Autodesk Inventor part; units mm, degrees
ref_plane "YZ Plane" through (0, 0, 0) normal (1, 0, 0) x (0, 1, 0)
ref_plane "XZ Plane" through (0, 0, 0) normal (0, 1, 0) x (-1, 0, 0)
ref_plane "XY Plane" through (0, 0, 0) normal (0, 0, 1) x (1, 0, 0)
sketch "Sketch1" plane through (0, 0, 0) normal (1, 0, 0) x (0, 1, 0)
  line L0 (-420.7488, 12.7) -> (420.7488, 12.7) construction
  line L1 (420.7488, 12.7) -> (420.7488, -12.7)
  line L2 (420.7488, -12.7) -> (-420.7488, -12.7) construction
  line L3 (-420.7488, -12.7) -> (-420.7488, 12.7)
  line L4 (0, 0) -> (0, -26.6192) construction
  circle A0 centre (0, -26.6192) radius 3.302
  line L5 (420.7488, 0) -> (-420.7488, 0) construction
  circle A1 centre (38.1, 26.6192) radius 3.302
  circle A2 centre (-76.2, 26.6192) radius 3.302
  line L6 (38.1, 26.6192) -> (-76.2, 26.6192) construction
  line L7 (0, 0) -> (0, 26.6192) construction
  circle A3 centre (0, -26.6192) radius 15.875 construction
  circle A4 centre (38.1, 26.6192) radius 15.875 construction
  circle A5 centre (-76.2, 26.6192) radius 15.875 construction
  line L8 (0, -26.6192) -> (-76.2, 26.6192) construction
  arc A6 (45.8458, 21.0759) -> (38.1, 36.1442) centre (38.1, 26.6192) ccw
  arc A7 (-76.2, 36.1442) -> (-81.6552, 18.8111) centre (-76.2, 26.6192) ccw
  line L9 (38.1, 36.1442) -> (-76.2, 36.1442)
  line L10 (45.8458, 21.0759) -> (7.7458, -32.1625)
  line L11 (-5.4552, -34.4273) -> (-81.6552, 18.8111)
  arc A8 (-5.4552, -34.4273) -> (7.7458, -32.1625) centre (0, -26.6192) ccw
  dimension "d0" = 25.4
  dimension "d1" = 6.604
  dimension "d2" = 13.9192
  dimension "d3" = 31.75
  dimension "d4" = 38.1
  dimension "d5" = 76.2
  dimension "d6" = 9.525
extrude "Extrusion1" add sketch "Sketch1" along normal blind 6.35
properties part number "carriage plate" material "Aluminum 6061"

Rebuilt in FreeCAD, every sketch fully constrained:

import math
import FreeCAD as App
import Part
import Sketcher
Q = App.Units.Quantity

doc = App.newDocument("Part")
body = doc.addObject("PartDesign::Body", "Body")

# Sketch on YZ plane
sketch1 = body.newObject("Sketcher::SketchObject", "Sketch")
sketch1.AttachmentSupport = (doc.getObject("YZ_Plane"), [""])
sketch1.MapMode = "FlatFace"
sketch1.addGeometry(Part.LineSegment(App.Vector(7.7, -32.2, 0), App.Vector(45.8, 21.1, 0)), False)
sketch1.addGeometry(Part.ArcOfCircle(Part.Circle(App.Vector(38.1, 26.6, 0), App.Vector(0, 0, 1), 9.5), math.radians(-36), math.radians(90)), False)
sketch1.addGeometry(Part.LineSegment(App.Vector(38.1, 36.1, 0), App.Vector(-76.2, 36.1, 0)), False)
sketch1.addGeometry(Part.ArcOfCircle(Part.Circle(App.Vector(-76.2, 26.6, 0), App.Vector(0, 0, 1), 9.5), math.radians(90), math.radians(235)), False)
sketch1.addGeometry(Part.LineSegment(App.Vector(-81.7, 18.8, 0), App.Vector(-5.5, -34.4, 0)), False)
sketch1.addGeometry(Part.ArcOfCircle(Part.Circle(App.Vector(0, -26.6, 0), App.Vector(0, 0, 1), 9.5), math.radians(-125), math.radians(-36)), False)
sketch1.addGeometry(Part.Circle(App.Vector(0, -26.6, 0), App.Vector(0, 0, 1), 3.3), False)
sketch1.addGeometry(Part.Circle(App.Vector(-76.2, 26.6, 0), App.Vector(0, 0, 1), 3.3), False)
sketch1.addGeometry(Part.Circle(App.Vector(38.1, 26.6, 0), App.Vector(0, 0, 1), 3.3), False)
sketch1.addConstraint(Sketcher.Constraint("Tangent", 0, 2, 1, 1))
sketch1.addConstraint(Sketcher.Constraint("Tangent", 1, 2, 2, 1))
sketch1.addConstraint(Sketcher.Constraint("Tangent", 2, 2, 3, 1))
sketch1.addConstraint(Sketcher.Constraint("Tangent", 3, 2, 4, 1))
sketch1.addConstraint(Sketcher.Constraint("Tangent", 4, 2, 5, 1))
sketch1.addConstraint(Sketcher.Constraint("Tangent", 5, 2, 0, 1))
sketch1.addConstraint(Sketcher.Constraint("Horizontal", 2))
sketch1.addConstraint(Sketcher.Constraint("Coincident", 6, 3, 5, 3))
sketch1.addConstraint(Sketcher.Constraint("Coincident", 7, 3, 3, 3))
sketch1.addConstraint(Sketcher.Constraint("Coincident", 8, 3, 1, 3))
sketch1.addConstraint(Sketcher.Constraint("Equal", 1, 3))
sketch1.addConstraint(Sketcher.Constraint("Equal", 3, 5))
sketch1.addConstraint(Sketcher.Constraint("Equal", 6, 7))
sketch1.addConstraint(Sketcher.Constraint("Equal", 7, 8))
sketch1.addConstraint(Sketcher.Constraint("PointOnObject", 5, 3, -2))
sketch1.addConstraint(Sketcher.Constraint("Diameter", 6, Q("0.26 in")))
sketch1.addConstraint(Sketcher.Constraint("DistanceX", 3, 3, -1, 1, Q("3 in")))
sketch1.addConstraint(Sketcher.Constraint("Radius", 1, Q("0.375 in")))
sketch1.addConstraint(Sketcher.Constraint("DistanceX", -1, 1, 1, 3, Q("1.5 in")))
sketch1.addConstraint(Sketcher.Constraint("Angle", 0, Q("54.4106 deg")))
sketch1.addConstraint(Sketcher.Constraint("DistanceY", -1, 1, 1, 3, Q("1.048 in")))
pad1 = body.newObject("PartDesign::Pad", "Pad")
pad1.Profile = sketch1
pad1.Length = Q("0.25 in")

doc.recompute()
